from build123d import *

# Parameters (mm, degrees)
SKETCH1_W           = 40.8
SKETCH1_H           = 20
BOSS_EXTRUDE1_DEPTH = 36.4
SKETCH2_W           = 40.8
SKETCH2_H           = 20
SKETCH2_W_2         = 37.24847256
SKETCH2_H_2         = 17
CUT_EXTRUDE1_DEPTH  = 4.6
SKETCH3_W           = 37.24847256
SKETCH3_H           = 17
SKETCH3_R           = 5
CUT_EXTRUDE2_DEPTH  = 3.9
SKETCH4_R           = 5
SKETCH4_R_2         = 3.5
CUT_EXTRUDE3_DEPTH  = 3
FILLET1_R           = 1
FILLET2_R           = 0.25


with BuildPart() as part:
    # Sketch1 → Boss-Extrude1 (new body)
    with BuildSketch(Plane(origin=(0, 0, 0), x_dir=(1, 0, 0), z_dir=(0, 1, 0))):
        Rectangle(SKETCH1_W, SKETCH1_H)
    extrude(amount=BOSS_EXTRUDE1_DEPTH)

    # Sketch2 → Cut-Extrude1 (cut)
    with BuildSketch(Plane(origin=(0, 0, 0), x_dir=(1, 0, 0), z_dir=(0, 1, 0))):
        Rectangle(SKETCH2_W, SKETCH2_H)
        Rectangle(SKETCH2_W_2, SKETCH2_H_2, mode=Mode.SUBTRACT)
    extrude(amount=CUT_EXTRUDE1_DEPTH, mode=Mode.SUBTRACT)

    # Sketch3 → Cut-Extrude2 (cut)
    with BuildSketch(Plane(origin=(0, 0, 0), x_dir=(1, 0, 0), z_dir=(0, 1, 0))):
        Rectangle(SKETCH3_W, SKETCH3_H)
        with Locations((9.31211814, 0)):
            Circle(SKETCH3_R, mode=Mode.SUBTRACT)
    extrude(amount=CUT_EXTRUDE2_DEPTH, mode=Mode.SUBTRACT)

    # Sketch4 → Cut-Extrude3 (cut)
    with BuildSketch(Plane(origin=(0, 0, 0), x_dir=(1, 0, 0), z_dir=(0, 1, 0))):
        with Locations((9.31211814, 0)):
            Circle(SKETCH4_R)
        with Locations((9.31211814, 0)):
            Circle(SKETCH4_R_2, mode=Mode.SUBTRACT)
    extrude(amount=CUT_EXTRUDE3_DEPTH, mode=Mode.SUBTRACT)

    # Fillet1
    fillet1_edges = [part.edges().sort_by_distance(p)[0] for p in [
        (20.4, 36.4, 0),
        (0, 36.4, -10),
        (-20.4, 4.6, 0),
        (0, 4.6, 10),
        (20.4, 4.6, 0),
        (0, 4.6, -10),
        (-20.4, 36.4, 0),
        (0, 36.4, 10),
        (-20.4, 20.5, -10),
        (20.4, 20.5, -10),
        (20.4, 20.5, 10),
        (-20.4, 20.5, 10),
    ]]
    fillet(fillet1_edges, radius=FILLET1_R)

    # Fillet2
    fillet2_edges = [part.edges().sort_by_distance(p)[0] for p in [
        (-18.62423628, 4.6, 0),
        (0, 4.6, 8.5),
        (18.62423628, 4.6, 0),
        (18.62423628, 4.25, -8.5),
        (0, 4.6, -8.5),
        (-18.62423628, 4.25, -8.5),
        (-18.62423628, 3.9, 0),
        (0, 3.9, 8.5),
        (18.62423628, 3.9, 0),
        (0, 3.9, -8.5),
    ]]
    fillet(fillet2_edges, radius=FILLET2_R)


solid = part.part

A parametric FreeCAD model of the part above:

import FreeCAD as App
import Part
import Sketcher


def edges_at(feature, points):
    """Names of the edges that pass closest to the given points."""
    edges = feature.Shape.Edges
    near = lambda p: min(range(len(edges)), key=lambda i: edges[i].distToShape(Part.Vertex(*p))[0])
    return sorted({f"Edge{near(p) + 1}" for p in points})


def add_polygon(sketch, points):
    """Adds a closed chain of lines whose ends are joined by coincident constraints."""
    first, n = sketch.GeometryCount, len(points)
    for a, b in zip(points, points[1:] + points[:1]):
        sketch.addGeometry(Part.LineSegment(App.Vector(*a, 0), App.Vector(*b, 0)), False)
    for i in range(n):
        sketch.addConstraint(Sketcher.Constraint("Coincident", first + i, 2, first + (i + 1) % n, 1))

doc = App.newDocument("Part")
params = doc.addObject("Spreadsheet::Sheet", "Params")
for row, (alias, value) in enumerate([
    ("sketch1_height", "20 mm"),
    ("sketch1_width", "40.8 mm"),
    ("pad1_length", "36.4 mm"),
    ("sketch2_height", "20 mm"),
    ("sketch2_height2", "17 mm"),
    ("sketch2_width", "40.8 mm"),
    ("pocket1_length", "4.6 mm"),
    ("sketch3_diameter", "10 mm"),
    ("sketch3_height", "17 mm"),
    ("pocket2_length", "3.9 mm"),
    ("sketch4_diameter", "10 mm"),
    ("sketch4_diameter2", "7 mm"),
    ("pocket3_length", "3 mm"),
    ("fillet_radius", "1 mm"),
    ("fillet2_radius", "0.25 mm"),
], start=1):
    params.set(f"A{row}", alias)
    params.set(f"B{row}", "=" + value)
    params.setAlias(f"B{row}", alias)

body = doc.addObject("PartDesign::Body", "Body")

# Sketch on XZ plane
sketch1 = body.newObject("Sketcher::SketchObject", "Sketch")
sketch1.AttachmentSupport = (doc.getObject("XZ_Plane"), [""])
sketch1.MapMode = "FlatFace"
add_polygon(sketch1, [(-20, -10), (-20, 10), (20, 10), (20, -10)])  # lines 0-3
sketch1.addConstraint(Sketcher.Constraint("Vertical", 0))
sketch1.addConstraint(Sketcher.Constraint("Horizontal", 1))
sketch1.addConstraint(Sketcher.Constraint("Vertical", 2))
sketch1.addConstraint(Sketcher.Constraint("Horizontal", 3))
sketch1.addConstraint(Sketcher.Constraint("Symmetric", 0, 2, 2, 2, -1, 1))
sketch1.addConstraint(Sketcher.Constraint("DistanceY", 0, 1, 0, 2, 20.0))
sketch1.addConstraint(Sketcher.Constraint("DistanceX", 1, 1, 1, 2, 40.8))
sketch1.setExpression("Constraints[9]", "Params.sketch1_height")
sketch1.setExpression("Constraints[10]", "Params.sketch1_width")
pad1 = body.newObject("PartDesign::Pad", "Pad")
pad1.Profile = sketch1
pad1.setExpression("Length", "Params.pad1_length")
pad1.Reversed = True

# Sketch on XZ plane
sketch2 = body.newObject("Sketcher::SketchObject", "Sketch001")
sketch2.AttachmentSupport = (doc.getObject("XZ_Plane"), [""])
sketch2.MapMode = "FlatFace"
add_polygon(sketch2, [(-20, -10), (-20, 10), (20, 10), (20, -10)])  # lines 0-3
add_polygon(sketch2, [(19, 8), (-19, 8), (-19, -8), (19, -8)])  # lines 4-7
sketch2.addConstraint(Sketcher.Constraint("Vertical", 0))
sketch2.addConstraint(Sketcher.Constraint("Horizontal", 1))
sketch2.addConstraint(Sketcher.Constraint("Vertical", 2))
sketch2.addConstraint(Sketcher.Constraint("Horizontal", 3))
sketch2.addConstraint(Sketcher.Constraint("Horizontal", 4))
sketch2.addConstraint(Sketcher.Constraint("Vertical", 5))
sketch2.addConstraint(Sketcher.Constraint("Horizontal", 6))
sketch2.addConstraint(Sketcher.Constraint("Vertical", 7))
sketch2.addConstraint(Sketcher.Constraint("Symmetric", 0, 2, 2, 2, -1, 1))
sketch2.addConstraint(Sketcher.Constraint("Symmetric", 4, 2, 6, 2, -1, 1))
sketch2.addConstraint(Sketcher.Constraint("DistanceY", 0, 1, 0, 2, 20.0))
sketch2.addConstraint(Sketcher.Constraint("DistanceY", 5, 2, 5, 1, 17.0))
sketch2.addConstraint(Sketcher.Constraint("DistanceX", 1, 1, 1, 2, 40.8))
sketch2.addConstraint(Sketcher.Constraint("DistanceX", 4, 2, 4, 1, 37.248473))
sketch2.setExpression("Constraints[18]", "Params.sketch2_height")
sketch2.setExpression("Constraints[19]", "Params.sketch2_height2")
sketch2.setExpression("Constraints[20]", "Params.sketch2_width")
pocket1 = body.newObject("PartDesign::Pocket", "Pocket")
pocket1.Profile = sketch2
pocket1.setExpression("Length", "Params.pocket1_length")

# Sketch on XZ plane
sketch3 = body.newObject("Sketcher::SketchObject", "Sketch002")
sketch3.AttachmentSupport = (doc.getObject("XZ_Plane"), [""])
sketch3.MapMode = "FlatFace"
add_polygon(sketch3, [(-19, -8), (-19, 8), (19, 8), (19, -8)])  # lines 0-3
sketch3.addGeometry(Part.Circle(App.Vector(9, 0, 0), App.Vector(0, 0, 1), 5), False)  # 4
sketch3.addConstraint(Sketcher.Constraint("Vertical", 0))
sketch3.addConstraint(Sketcher.Constraint("Horizontal", 1))
sketch3.addConstraint(Sketcher.Constraint("Vertical", 2))
sketch3.addConstraint(Sketcher.Constraint("Horizontal", 3))
sketch3.addConstraint(Sketcher.Constraint("Symmetric", 0, 2, 2, 2, -1, 1))
sketch3.addConstraint(Sketcher.Constraint("PointOnObject", 4, 3, -1))
sketch3.addConstraint(Sketcher.Constraint("Diameter", 4, 10.0))
sketch3.addConstraint(Sketcher.Constraint("DistanceY", 0, 1, 0, 2, 17.0))
sketch3.addConstraint(Sketcher.Constraint("DistanceX", 1, 1, 1, 2, 37.248473))
sketch3.addConstraint(Sketcher.Constraint("DistanceX", -1, 1, 4, 3, 9.312118))
sketch3.setExpression("Constraints[10]", "Params.sketch3_diameter")
sketch3.setExpression("Constraints[11]", "Params.sketch3_height")
pocket2 = body.newObject("PartDesign::Pocket", "Pocket001")
pocket2.Profile = sketch3
pocket2.setExpression("Length", "Params.pocket2_length")

# Sketch on XZ plane
sketch4 = body.newObject("Sketcher::SketchObject", "Sketch003")
sketch4.AttachmentSupport = (doc.getObject("XZ_Plane"), [""])
sketch4.MapMode = "FlatFace"
sketch4.addGeometry(Part.Circle(App.Vector(9.3, 0, 0), App.Vector(0, 0, 1), 5), False)
sketch4.addGeometry(Part.Circle(App.Vector(9.3, 0, 0), App.Vector(0, 0, 1), 3.5), False)
sketch4.addConstraint(Sketcher.Constraint("Coincident", 1, 3, 0, 3))
sketch4.addConstraint(Sketcher.Constraint("PointOnObject", 0, 3, -1))
sketch4.addConstraint(Sketcher.Constraint("Diameter", 0, 10.0))
sketch4.addConstraint(Sketcher.Constraint("Diameter", 1, 7.0))
sketch4.addConstraint(Sketcher.Constraint("DistanceX", -1, 1, 0, 3, 9.312118))
sketch4.setExpression("Constraints[2]", "Params.sketch4_diameter")
sketch4.setExpression("Constraints[3]", "Params.sketch4_diameter2")
pocket3 = body.newObject("PartDesign::Pocket", "Pocket002")
pocket3.Profile = sketch4
pocket3.setExpression("Length", "Params.pocket3_length")
doc.recompute()

fillet = body.newObject("PartDesign::Fillet", "Fillet")
fillet.Base = (pocket3, edges_at(pocket3, [
    (20.4, 36.4, 0),
    (0, 36.4, -10),
    (-20.4, 4.6, 0),
    (0, 4.6, 10),
    (20.4, 4.6, 0),
    (0, 4.6, -10),
    (-20.4, 36.4, 0),
    (0, 36.4, 10),
    (-20.4, 20.5, -10),
    (20.4, 20.5, -10),
    (20.4, 20.5, 10),
    (-20.4, 20.5, 10),
]))
fillet.setExpression("Radius", "Params.fillet_radius")
doc.recompute()

fillet2 = body.newObject("PartDesign::Fillet", "Fillet001")
fillet2.Base = (fillet, edges_at(fillet, [
    (-18.624, 4.6, 0),
    (0, 4.6, 8.5),
    (18.624, 4.6, 0),
    (18.624, 4.25, -8.5),
    (0, 4.6, -8.5),
    (-18.624, 4.25, -8.5),
    (-18.624, 3.9, 0),
    (0, 3.9, 8.5),
    (18.624, 3.9, 0),
    (0, 3.9, -8.5),
]))
fillet2.setExpression("Radius", "Params.fillet2_radius")

doc.recompute()
